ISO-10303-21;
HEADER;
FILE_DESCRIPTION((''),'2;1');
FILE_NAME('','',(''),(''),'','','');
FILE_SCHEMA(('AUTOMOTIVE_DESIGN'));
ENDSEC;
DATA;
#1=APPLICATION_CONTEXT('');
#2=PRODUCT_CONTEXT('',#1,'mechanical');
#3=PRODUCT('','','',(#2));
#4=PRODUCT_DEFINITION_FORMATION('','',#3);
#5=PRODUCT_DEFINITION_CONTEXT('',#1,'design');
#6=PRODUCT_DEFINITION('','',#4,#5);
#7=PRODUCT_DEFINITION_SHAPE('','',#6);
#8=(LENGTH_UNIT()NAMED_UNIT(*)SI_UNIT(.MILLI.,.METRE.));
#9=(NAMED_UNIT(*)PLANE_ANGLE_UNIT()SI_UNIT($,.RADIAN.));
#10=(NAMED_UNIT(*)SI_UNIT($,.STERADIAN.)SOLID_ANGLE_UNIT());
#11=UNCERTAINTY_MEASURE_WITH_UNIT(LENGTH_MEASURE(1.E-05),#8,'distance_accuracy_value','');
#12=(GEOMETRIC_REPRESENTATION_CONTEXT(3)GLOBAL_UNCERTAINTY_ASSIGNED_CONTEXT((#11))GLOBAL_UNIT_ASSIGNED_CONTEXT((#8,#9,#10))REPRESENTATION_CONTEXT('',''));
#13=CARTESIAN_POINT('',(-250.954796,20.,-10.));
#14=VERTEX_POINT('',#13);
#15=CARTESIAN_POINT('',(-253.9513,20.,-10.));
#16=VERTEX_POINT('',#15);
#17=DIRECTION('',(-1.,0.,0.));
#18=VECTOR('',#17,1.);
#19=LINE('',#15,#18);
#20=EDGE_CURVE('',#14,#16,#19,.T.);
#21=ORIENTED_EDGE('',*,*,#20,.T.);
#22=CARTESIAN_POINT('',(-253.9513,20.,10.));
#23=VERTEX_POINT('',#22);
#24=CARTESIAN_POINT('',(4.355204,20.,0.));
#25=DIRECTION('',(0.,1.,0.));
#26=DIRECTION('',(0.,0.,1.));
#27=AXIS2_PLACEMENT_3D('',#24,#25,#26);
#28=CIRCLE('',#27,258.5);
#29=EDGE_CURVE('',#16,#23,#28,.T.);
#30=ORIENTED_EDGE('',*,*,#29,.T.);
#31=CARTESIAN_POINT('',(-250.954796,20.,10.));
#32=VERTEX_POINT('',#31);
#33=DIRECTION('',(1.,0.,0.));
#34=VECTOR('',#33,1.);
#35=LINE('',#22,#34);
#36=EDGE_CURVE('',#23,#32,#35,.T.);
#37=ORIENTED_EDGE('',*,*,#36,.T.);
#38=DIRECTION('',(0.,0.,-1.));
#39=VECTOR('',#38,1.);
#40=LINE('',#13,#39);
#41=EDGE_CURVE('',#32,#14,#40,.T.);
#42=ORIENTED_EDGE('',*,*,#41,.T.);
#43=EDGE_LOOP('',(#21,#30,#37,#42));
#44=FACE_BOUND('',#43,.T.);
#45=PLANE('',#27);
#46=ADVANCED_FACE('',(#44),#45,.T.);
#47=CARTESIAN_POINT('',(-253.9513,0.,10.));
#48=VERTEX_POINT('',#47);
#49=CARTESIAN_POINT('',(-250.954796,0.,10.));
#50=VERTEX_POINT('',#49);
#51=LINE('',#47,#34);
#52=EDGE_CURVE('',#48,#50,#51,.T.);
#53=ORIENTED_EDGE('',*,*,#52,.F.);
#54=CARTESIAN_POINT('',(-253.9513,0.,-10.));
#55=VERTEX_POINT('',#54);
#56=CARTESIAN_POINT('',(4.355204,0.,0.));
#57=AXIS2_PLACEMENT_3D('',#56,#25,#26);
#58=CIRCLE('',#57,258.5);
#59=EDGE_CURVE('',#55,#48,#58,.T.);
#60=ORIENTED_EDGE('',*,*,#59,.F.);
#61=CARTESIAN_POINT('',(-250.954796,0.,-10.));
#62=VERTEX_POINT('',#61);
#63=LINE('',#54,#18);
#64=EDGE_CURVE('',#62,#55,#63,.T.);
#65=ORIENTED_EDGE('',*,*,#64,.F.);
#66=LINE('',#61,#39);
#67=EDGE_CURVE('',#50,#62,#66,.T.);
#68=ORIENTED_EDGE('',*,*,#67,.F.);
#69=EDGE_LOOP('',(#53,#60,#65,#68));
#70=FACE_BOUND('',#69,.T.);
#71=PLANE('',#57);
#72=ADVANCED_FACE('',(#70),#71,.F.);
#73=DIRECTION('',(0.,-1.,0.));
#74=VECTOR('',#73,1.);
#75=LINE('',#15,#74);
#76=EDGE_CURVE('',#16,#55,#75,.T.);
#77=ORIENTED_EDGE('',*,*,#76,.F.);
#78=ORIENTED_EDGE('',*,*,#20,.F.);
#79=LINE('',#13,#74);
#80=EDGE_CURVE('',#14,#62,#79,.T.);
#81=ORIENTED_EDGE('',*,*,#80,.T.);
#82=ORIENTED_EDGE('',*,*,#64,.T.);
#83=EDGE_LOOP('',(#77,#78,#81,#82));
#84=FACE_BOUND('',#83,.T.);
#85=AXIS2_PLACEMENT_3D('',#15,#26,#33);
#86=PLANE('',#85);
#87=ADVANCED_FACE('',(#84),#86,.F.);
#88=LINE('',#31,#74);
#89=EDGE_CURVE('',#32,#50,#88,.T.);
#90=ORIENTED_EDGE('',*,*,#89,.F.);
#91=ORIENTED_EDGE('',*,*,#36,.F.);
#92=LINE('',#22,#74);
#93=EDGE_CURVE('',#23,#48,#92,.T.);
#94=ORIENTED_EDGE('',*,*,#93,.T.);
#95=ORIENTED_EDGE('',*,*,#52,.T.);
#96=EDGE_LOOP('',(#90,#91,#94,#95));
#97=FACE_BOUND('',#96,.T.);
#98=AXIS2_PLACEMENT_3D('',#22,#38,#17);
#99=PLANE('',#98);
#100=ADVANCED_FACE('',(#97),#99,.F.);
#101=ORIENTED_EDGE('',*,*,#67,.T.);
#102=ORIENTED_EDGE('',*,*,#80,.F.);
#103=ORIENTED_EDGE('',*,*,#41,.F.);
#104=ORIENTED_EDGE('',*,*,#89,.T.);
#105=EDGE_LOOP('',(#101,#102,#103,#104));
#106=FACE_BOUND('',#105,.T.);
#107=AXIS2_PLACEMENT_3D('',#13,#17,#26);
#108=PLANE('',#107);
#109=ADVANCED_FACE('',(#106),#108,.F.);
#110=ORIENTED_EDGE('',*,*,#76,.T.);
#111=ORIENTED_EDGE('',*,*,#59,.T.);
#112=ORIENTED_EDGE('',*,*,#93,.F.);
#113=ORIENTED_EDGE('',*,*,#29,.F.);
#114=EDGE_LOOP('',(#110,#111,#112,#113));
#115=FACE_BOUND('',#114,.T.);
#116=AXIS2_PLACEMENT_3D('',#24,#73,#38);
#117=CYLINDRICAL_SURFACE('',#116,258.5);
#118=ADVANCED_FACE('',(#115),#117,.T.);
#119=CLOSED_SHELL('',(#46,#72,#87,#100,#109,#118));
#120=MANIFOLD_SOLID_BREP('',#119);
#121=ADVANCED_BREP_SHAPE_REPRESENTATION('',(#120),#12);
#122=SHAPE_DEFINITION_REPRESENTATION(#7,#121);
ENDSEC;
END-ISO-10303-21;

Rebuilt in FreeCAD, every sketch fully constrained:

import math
import FreeCAD as App
import Part
import Sketcher

V = App.Vector
Q = App.Units.Quantity

doc = App.newDocument("Part")
body = doc.addObject("PartDesign::Body", "Body")

# Sketch on XZ plane
sketch1 = body.newObject("Sketcher::SketchObject", "Sketch")
sketch1.AttachmentSupport = (doc.getObject("XZ_Plane"), [""])
sketch1.MapMode = "FlatFace"
sketch1.addGeometry([
    Part.LineSegment(V(-251, -10, 0), V(-254, -10, 0)),
    Part.ArcOfCircle(Part.Circle(V(4.4, 0, 0), V(0, 0, 1), 258.5), math.radians(177.78), math.radians(182.22)),
    Part.LineSegment(V(-254, 10, 0), V(-251, 10, 0)),
    Part.LineSegment(V(-251, 10, 0), V(-251, -10, 0)),
], False)
sketch1.addConstraint([
    Sketcher.Constraint("Coincident", 0, 2, 1, 2),
    Sketcher.Constraint("Coincident", 1, 1, 2, 1),
    Sketcher.Constraint("Coincident", 2, 2, 3, 1),
    Sketcher.Constraint("Coincident", 3, 2, 0, 1),
    Sketcher.Constraint("Horizontal", 0),
    Sketcher.Constraint("Horizontal", 2),
    Sketcher.Constraint("Vertical", 3),
    Sketcher.Constraint("Symmetric", 0, 2, 1, 1, -1),
    Sketcher.Constraint("Radius", 1, Q("258.5 mm")),
    Sketcher.Constraint("DistanceY", 3, 2, 3, 1, Q("20 mm")),
    Sketcher.Constraint("DistanceX", 2, 2, 1, 3, Q("255.31 mm")),
    Sketcher.Constraint("DistanceX", 0, 2, -1, 1, Q("253.9513 mm")),
])
pad1 = body.newObject("PartDesign::Pad", "Pad")
pad1.Profile = sketch1
pad1.Length = 20
pad1.Reversed = True

doc.recompute()
